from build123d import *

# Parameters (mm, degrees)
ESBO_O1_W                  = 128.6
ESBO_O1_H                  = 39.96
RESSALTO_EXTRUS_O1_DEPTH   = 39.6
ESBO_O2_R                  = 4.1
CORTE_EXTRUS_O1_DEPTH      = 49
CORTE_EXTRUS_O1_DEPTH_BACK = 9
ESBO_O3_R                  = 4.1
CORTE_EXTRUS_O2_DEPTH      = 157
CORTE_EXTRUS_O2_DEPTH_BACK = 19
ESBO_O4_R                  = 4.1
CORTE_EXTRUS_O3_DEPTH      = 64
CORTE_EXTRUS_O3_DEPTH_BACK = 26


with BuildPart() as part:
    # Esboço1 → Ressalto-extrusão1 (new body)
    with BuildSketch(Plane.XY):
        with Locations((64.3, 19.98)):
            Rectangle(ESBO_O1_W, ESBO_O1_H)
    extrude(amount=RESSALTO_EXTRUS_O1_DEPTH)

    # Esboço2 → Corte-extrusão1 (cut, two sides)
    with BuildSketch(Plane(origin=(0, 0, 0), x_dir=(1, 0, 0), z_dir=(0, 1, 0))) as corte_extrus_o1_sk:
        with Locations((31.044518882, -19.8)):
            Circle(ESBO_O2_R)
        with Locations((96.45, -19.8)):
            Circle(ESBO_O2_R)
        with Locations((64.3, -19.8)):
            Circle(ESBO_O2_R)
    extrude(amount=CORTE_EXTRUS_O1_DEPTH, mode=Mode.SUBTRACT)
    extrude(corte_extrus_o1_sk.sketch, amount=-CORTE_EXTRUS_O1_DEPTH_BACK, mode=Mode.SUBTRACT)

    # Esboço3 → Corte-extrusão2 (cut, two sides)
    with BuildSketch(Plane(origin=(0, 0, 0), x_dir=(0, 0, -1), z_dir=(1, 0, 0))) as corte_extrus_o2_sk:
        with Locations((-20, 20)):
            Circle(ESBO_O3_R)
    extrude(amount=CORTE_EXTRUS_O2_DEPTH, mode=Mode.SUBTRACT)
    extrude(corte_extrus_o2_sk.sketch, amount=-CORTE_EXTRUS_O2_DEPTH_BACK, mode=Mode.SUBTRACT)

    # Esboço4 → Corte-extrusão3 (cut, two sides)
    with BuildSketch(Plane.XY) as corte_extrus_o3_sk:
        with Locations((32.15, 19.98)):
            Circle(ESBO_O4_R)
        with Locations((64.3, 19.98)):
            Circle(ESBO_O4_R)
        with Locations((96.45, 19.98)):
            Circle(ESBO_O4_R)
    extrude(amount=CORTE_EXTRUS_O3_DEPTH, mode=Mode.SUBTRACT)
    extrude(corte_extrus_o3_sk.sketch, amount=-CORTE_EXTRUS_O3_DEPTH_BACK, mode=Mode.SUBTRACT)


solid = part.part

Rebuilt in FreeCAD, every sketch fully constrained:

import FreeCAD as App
import Part
import Sketcher
Q = App.Units.Quantity


def add_polygon(sketch, points):
    """Adds a closed chain of lines whose ends are joined by coincident constraints."""
    first, n = sketch.GeometryCount, len(points)
    for a, b in zip(points, points[1:] + points[:1]):
        sketch.addGeometry(Part.LineSegment(App.Vector(*a, 0), App.Vector(*b, 0)), False)
    for i in range(n):
        sketch.addConstraint(Sketcher.Constraint("Coincident", first + i, 2, first + (i + 1) % n, 1))

doc = App.newDocument("Part")
body = doc.addObject("PartDesign::Body", "Body")

# Sketch on XY plane
sketch1 = doc.addObject("Sketcher::SketchObject", "Sketch")
body.addObject(sketch1)
sketch1.AttachmentSupport = (doc.XY_Plane, [""])
sketch1.MapMode = "FlatFace"
add_polygon(sketch1, [(0, 40), (0, 0), (129, 0), (129, 40)])  # lines 0-3
sketch1.addConstraint([
    Sketcher.Constraint("Vertical", 0),
    Sketcher.Constraint("Horizontal", 1),
    Sketcher.Constraint("Vertical", 2),
    Sketcher.Constraint("Horizontal", 3),
    Sketcher.Constraint("Coincident", 0, 2, -1, 1),
    Sketcher.Constraint("DistanceX", 1, 1, 1, 2, Q("128.6 mm")),
    Sketcher.Constraint("DistanceY", 0, 2, 0, 1, Q("39.96 mm")),
])
pad1 = doc.addObject("PartDesign::Pad", "Pad")
body.addObject(pad1)
pad1.Profile = sketch1
pad1.Length = 39.6

# Sketch on XZ plane
sketch2 = doc.addObject("Sketcher::SketchObject", "Sketch001")
body.addObject(sketch2)
sketch2.AttachmentSupport = (doc.XZ_Plane, [""])
sketch2.MapMode = "FlatFace"
sketch2.addGeometry([
    Part.Circle(App.Vector(31, 19.8, 0), App.Vector(0, 0, 1), 4.1),
    Part.Circle(App.Vector(96.5, 19.8, 0), App.Vector(0, 0, 1), 4.1),
    Part.Circle(App.Vector(64.3, 19.8, 0), App.Vector(0, 0, 1), 4.1),
], False)
sketch2.addConstraint([
    Sketcher.Constraint("Equal", 0, 1),
    Sketcher.Constraint("Equal", 1, 2),
    Sketcher.Constraint("Horizontal", 0, 3, 1, 3),
    Sketcher.Constraint("Horizontal", 1, 3, 2, 3),
    Sketcher.Constraint("Diameter", 0, Q("8.2 mm")),
    Sketcher.Constraint("DistanceY", -1, 1, 0, 3, Q("19.8 mm")),
    Sketcher.Constraint("DistanceX", -1, 1, 2, 3, Q("64.3 mm")),
    Sketcher.Constraint("DistanceX", -1, 1, 1, 3, Q("96.45 mm")),
    Sketcher.Constraint("DistanceX", -1, 1, 0, 3, Q("31.044519 mm")),
])
pocket1 = doc.addObject("PartDesign::Pocket", "Pocket")
body.addObject(pocket1)
pocket1.Profile = sketch2
pocket1.Type = "ThroughAll"
pocket1.Midplane = True

# Sketch on YZ plane
sketch3 = doc.addObject("Sketcher::SketchObject", "Sketch002")
body.addObject(sketch3)
sketch3.AttachmentSupport = (doc.YZ_Plane, [""])
sketch3.MapMode = "FlatFace"
sketch3.addGeometry(Part.Circle(App.Vector(20, 20, 0), App.Vector(0, 0, 1), 4.1), False)
sketch3.addConstraint([
    Sketcher.Constraint("Diameter", 0, Q("8.2 mm")),
    Sketcher.Constraint("DistanceX", -1, 1, 0, 3, Q("20 mm")),
    Sketcher.Constraint("DistanceY", -1, 1, 0, 3, Q("20 mm")),
])
pocket2 = doc.addObject("PartDesign::Pocket", "Pocket001")
body.addObject(pocket2)
pocket2.Profile = sketch3
pocket2.Type = "ThroughAll"
pocket2.Midplane = True

# Sketch on XY plane
sketch4 = doc.addObject("Sketcher::SketchObject", "Sketch003")
body.addObject(sketch4)
sketch4.AttachmentSupport = (doc.XY_Plane, [""])
sketch4.MapMode = "FlatFace"
sketch4.addGeometry([
    Part.Circle(App.Vector(32.1, 20, 0), App.Vector(0, 0, 1), 4.1),
    Part.Circle(App.Vector(64.3, 20, 0), App.Vector(0, 0, 1), 4.1),
    Part.Circle(App.Vector(96.5, 20, 0), App.Vector(0, 0, 1), 4.1),
], False)
sketch4.addConstraint([
    Sketcher.Constraint("Equal", 0, 1),
    Sketcher.Constraint("Equal", 1, 2),
    Sketcher.Constraint("Horizontal", 0, 3, 1, 3),
    Sketcher.Constraint("Horizontal", 1, 3, 2, 3),
    Sketcher.Constraint("Diameter", 0, Q("8.2 mm")),
    Sketcher.Constraint("DistanceX", -1, 1, 1, 3, Q("64.3 mm")),
    Sketcher.Constraint("DistanceX", 0, 3, 2, 3, Q("64.3 mm")),
    Sketcher.Constraint("DistanceX", -1, 1, 0, 3, Q("32.15 mm")),
    Sketcher.Constraint("DistanceY", -1, 1, 0, 3, Q("19.98 mm")),
])
pocket3 = doc.addObject("PartDesign::Pocket", "Pocket002")
body.addObject(pocket3)
pocket3.Profile = sketch4
pocket3.Type = "ThroughAll"
pocket3.Midplane = True

doc.recompute()
